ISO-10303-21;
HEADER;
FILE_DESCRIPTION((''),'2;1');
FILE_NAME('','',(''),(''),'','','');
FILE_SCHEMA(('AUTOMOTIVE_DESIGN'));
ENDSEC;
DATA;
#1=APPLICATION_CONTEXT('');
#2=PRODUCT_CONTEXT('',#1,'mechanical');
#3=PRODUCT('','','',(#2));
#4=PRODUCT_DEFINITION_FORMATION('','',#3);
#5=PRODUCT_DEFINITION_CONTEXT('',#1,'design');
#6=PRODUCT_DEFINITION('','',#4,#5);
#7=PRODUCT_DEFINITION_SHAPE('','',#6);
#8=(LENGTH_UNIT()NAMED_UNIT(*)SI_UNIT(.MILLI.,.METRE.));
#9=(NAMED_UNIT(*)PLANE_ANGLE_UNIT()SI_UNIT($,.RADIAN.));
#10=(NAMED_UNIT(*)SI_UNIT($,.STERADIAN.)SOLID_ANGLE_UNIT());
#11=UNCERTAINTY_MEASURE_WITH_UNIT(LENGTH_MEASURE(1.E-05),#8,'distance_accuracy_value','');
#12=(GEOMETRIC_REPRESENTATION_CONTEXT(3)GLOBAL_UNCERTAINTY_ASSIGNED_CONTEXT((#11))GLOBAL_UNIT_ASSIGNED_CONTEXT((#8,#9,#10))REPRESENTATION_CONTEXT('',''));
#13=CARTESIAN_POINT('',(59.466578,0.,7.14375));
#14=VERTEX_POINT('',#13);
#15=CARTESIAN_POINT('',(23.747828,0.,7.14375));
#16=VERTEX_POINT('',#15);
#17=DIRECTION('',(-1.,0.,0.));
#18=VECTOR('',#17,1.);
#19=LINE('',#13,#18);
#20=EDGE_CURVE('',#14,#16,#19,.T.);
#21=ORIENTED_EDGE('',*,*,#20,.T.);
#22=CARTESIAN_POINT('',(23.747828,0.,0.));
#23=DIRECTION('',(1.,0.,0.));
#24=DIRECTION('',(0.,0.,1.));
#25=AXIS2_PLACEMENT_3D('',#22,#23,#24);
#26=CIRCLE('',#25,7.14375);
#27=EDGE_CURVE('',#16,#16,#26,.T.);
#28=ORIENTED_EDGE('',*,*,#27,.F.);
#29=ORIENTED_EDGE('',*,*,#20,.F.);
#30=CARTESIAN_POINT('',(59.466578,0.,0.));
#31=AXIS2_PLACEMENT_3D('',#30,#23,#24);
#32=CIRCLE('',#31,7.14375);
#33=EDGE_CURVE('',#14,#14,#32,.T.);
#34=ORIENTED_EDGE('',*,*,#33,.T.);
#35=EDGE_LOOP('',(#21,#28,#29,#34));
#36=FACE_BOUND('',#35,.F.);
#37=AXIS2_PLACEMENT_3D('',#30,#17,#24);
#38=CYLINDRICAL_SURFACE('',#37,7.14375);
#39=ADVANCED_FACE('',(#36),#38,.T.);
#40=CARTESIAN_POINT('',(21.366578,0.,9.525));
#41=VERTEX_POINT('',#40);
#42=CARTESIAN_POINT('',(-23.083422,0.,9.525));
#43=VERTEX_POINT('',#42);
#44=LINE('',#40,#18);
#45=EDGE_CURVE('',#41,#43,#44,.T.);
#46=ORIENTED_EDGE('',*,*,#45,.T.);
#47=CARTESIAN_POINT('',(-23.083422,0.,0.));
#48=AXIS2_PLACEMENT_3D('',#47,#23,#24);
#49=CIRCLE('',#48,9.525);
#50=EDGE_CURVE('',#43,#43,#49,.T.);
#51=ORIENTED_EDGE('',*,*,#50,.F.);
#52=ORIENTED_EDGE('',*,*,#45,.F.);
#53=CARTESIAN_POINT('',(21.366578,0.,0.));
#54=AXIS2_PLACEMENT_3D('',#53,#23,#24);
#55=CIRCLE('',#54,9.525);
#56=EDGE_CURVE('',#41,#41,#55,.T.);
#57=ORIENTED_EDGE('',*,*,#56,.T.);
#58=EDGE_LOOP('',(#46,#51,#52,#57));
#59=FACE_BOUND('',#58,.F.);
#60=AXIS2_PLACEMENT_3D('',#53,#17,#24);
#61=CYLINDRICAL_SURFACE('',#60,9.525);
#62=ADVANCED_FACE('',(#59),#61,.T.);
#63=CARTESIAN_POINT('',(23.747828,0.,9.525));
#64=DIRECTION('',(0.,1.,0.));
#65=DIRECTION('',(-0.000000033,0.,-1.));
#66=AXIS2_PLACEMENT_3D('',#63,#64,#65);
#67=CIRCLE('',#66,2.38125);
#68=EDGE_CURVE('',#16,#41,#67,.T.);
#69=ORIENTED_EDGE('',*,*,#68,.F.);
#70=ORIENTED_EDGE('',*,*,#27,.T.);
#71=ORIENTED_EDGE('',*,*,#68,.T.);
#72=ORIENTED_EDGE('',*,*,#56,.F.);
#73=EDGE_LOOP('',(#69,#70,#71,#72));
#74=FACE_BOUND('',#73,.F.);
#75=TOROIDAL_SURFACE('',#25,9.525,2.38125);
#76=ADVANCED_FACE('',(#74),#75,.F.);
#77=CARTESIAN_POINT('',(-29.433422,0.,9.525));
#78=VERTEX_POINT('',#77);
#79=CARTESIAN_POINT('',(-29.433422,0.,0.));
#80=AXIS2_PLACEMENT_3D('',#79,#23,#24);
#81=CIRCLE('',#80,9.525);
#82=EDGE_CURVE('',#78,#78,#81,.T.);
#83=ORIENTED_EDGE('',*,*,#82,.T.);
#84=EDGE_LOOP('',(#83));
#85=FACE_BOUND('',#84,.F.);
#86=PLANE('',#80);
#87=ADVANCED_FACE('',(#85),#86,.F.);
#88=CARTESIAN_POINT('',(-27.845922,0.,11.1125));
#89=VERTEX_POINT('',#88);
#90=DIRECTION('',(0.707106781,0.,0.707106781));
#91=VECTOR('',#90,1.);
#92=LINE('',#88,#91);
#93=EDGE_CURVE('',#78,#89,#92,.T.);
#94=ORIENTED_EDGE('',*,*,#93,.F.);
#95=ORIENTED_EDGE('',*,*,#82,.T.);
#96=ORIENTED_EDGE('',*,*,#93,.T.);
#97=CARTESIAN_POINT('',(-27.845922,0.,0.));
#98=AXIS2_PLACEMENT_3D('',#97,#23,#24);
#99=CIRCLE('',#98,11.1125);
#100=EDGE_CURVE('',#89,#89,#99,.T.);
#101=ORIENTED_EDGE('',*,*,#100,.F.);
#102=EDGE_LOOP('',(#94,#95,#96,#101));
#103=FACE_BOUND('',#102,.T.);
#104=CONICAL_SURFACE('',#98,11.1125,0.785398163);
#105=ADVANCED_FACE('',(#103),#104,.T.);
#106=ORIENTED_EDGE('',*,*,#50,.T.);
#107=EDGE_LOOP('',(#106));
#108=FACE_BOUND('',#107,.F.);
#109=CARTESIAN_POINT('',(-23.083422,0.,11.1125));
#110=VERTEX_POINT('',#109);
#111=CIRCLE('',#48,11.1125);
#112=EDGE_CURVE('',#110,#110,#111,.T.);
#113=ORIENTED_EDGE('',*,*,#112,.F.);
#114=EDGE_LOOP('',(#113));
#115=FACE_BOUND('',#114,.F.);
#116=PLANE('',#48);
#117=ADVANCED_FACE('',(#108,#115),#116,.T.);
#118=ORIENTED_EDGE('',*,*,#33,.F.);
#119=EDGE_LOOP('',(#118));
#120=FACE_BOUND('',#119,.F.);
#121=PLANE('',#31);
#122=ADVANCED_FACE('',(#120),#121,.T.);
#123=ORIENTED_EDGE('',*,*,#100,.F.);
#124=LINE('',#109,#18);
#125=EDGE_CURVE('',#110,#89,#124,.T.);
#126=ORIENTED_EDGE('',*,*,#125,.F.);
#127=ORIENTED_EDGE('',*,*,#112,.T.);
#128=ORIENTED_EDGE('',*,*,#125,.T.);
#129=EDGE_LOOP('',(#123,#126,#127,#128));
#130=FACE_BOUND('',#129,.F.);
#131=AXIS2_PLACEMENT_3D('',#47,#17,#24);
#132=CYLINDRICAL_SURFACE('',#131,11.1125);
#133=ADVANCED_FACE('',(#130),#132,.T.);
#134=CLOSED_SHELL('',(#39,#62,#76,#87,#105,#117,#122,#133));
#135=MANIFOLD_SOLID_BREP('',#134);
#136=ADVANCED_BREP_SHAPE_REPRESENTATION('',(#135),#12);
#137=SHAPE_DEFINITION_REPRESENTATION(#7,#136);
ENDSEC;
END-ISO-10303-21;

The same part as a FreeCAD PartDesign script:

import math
import FreeCAD as App
import Part
import Sketcher
Q = App.Units.Quantity


def edges_at(feature, points):
    """Names of the edges that pass closest to the given points."""
    edges = feature.Shape.Edges
    near = lambda p: min(range(len(edges)), key=lambda i: edges[i].distToShape(Part.Vertex(*p))[0])
    return sorted({f"Edge{near(p) + 1}" for p in points})

doc = App.newDocument("Part")
params = doc.addObject("Spreadsheet::Sheet", "Params")
for row, (alias, value) in enumerate([
    ("sketch1_width", "3.5 in"),
    ("sketch1_radius", "0.09375 in"),
    ("sketch1_width2", "1.75 in"),
    ("sketch1_height", "0.4375 in"),
    ("sketch1_height2", "0.28125 in"),
    ("revolution_angle", "360 deg"),
    ("chamfer_size", "0.0625 in"),
], start=1):
    params.set(f"A{row}", alias)
    params.set(f"B{row}", "=" + value)
    params.setAlias(f"B{row}", alias)

body = doc.addObject("PartDesign::Body", "Body")

# Sketch on XZ plane
sketch1 = doc.addObject("Sketcher::SketchObject", "Sketch")
body.addObject(sketch1)
sketch1.AttachmentSupport = (doc.XZ_Plane, [""])
sketch1.MapMode = "FlatFace"
sketch1.addGeometry(Part.LineSegment(App.Vector(-29.4, 11.1, 0), App.Vector(-29.4, 0, 0)), False)
sketch1.addGeometry(Part.LineSegment(App.Vector(-29.4, 0, 0), App.Vector(59.5, 0, 0)), False)
sketch1.addGeometry(Part.LineSegment(App.Vector(59.5, 0, 0), App.Vector(59.5, 7.1, 0)), False)
sketch1.addGeometry(Part.LineSegment(App.Vector(59.5, 7.1, 0), App.Vector(23.7, 7.1, 0)), False)
sketch1.addGeometry(Part.ArcOfCircle(Part.Circle(App.Vector(23.7, 9.5, 0), App.Vector(0, 0, 1), 2.4), math.radians(-180), math.radians(-90)), False)
sketch1.addGeometry(Part.LineSegment(App.Vector(21.4, 9.5, 0), App.Vector(-23.1, 9.5, 0)), False)
sketch1.addGeometry(Part.LineSegment(App.Vector(-23.1, 9.5, 0), App.Vector(-23.1, 11.1, 0)), False)
sketch1.addGeometry(Part.LineSegment(App.Vector(-23.1, 11.1, 0), App.Vector(-29.4, 11.1, 0)), False)
sketch1.addConstraint(Sketcher.Constraint("Coincident", 0, 2, 1, 1))
sketch1.addConstraint(Sketcher.Constraint("Coincident", 1, 2, 2, 1))
sketch1.addConstraint(Sketcher.Constraint("Coincident", 2, 2, 3, 1))
sketch1.addConstraint(Sketcher.Constraint("Tangent", 3, 2, 4, 2))
sketch1.addConstraint(Sketcher.Constraint("Coincident", 4, 1, 5, 1))
sketch1.addConstraint(Sketcher.Constraint("Coincident", 5, 2, 6, 1))
sketch1.addConstraint(Sketcher.Constraint("Coincident", 6, 2, 7, 1))
sketch1.addConstraint(Sketcher.Constraint("Coincident", 7, 2, 0, 1))
sketch1.addConstraint(Sketcher.Constraint("Vertical", 0))
sketch1.addConstraint(Sketcher.Constraint("Horizontal", 1))
sketch1.addConstraint(Sketcher.Constraint("Vertical", 2))
sketch1.addConstraint(Sketcher.Constraint("Horizontal", 3))
sketch1.addConstraint(Sketcher.Constraint("Horizontal", 5))
sketch1.addConstraint(Sketcher.Constraint("Vertical", 6))
sketch1.addConstraint(Sketcher.Constraint("Horizontal", 7))
sketch1.addConstraint(Sketcher.Constraint("PointOnObject", 0, 2, -1))
sketch1.addConstraint(Sketcher.Constraint("DistanceX", 1, 1, 1, 2, Q("3.5 in")))
sketch1.addConstraint(Sketcher.Constraint("Radius", 4, Q("0.09375 in")))
sketch1.addConstraint(Sketcher.Constraint("DistanceX", 0, 2, 4, 1, Q("2 in")))
sketch1.addConstraint(Sketcher.Constraint("DistanceX", 5, 2, 5, 1, Q("1.75 in")))
sketch1.addConstraint(Sketcher.Constraint("DistanceY", 0, 2, 0, 1, Q("0.4375 in")))
sketch1.addConstraint(Sketcher.Constraint("DistanceY", 2, 1, 2, 2, Q("0.28125 in")))
sketch1.addConstraint(Sketcher.Constraint("DistanceY", 6, 1, 6, 2, Q("0.0625 in")))
sketch1.addConstraint(Sketcher.Constraint("DistanceX", -1, 1, 4, 3, 23.747828))
sketch1.setExpression("Constraints[16]", "Params.sketch1_width")
sketch1.setExpression("Constraints[17]", "Params.sketch1_radius")
sketch1.setExpression("Constraints[19]", "Params.sketch1_width2")
sketch1.setExpression("Constraints[20]", "Params.sketch1_height")
sketch1.setExpression("Constraints[21]", "Params.sketch1_height2")
revolution = doc.addObject("PartDesign::Revolution", "Revolution")
body.addObject(revolution)
revolution.Profile = sketch1
revolution.ReferenceAxis = (sketch1, ["H_Axis"])
revolution.setExpression("Angle", "Params.revolution_angle")
doc.recompute()

chamfer = doc.addObject("PartDesign::Chamfer", "Chamfer")
body.addObject(chamfer)
chamfer.Base = (revolution, edges_at(revolution, [(-29.433, 0, -11.113)]))
chamfer.setExpression("Size", "Params.chamfer_size")

doc.recompute()
